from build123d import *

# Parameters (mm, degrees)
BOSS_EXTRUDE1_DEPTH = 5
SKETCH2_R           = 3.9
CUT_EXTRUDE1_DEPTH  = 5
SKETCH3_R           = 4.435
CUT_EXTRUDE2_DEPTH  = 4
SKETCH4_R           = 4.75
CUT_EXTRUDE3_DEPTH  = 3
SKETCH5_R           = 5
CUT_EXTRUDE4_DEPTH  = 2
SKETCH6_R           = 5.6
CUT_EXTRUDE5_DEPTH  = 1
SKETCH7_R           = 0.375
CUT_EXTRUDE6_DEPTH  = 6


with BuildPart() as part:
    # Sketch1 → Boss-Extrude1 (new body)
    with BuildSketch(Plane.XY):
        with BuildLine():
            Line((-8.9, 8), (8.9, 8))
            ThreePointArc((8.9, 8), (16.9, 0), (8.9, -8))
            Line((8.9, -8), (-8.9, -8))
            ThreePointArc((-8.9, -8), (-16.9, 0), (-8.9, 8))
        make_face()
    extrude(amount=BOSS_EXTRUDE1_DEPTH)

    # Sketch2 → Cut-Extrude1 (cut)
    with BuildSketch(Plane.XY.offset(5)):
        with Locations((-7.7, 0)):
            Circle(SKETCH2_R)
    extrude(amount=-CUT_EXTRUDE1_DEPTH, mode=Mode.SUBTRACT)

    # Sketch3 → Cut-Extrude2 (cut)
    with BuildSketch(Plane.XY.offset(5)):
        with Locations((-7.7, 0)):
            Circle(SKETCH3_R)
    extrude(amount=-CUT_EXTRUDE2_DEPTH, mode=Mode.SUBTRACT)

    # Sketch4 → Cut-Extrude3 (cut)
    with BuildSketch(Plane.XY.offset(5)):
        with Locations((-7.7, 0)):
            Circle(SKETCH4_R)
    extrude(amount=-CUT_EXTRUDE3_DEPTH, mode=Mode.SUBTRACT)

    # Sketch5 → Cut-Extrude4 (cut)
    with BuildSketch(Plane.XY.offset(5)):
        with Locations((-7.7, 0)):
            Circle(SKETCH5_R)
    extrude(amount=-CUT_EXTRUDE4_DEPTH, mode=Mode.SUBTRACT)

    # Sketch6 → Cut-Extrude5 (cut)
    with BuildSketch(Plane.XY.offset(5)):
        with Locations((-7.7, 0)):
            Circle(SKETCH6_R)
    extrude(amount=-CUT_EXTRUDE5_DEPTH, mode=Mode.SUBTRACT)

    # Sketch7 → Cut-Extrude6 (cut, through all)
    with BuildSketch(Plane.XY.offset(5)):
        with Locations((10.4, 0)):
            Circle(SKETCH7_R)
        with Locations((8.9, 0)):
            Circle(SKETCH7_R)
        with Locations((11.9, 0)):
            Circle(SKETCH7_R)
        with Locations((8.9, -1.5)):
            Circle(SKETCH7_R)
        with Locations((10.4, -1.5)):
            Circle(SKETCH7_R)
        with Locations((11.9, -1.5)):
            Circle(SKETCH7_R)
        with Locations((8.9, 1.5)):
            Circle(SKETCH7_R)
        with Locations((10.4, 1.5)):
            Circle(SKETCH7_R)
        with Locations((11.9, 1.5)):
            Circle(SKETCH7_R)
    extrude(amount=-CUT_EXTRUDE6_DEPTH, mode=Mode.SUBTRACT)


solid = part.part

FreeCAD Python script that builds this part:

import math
import FreeCAD as App
import Part
import Sketcher
from FreeCAD import Vector

doc = App.newDocument("Part")
body = doc.addObject("PartDesign::Body", "Body")

sketch1 = body.newObject("Sketcher::SketchObject", "Sketch")
sketch1.AttachmentSupport = (doc.getObject("XY_Plane"), [""])
sketch1.MapMode = "FlatFace"
sketch1.addGeometry([
    Part.LineSegment(Vector(9, 8, 0), Vector(-9, 8, 0)),
    Part.ArcOfCircle(Part.Circle(Vector(-9, 0, 0), Vector(0, 0, 1), 8), math.radians(90), math.radians(270)),
    Part.LineSegment(Vector(-9, -8, 0), Vector(9, -8, 0)),
    Part.ArcOfCircle(Part.Circle(Vector(9, 0, 0), Vector(0, 0, 1), 8), math.radians(-90), math.radians(90)),
], False)
sketch1.addConstraint([
    Sketcher.Constraint("Tangent", 0, 2, 1, 1),
    Sketcher.Constraint("Tangent", 1, 2, 2, 1),
    Sketcher.Constraint("Tangent", 2, 2, 3, 1),
    Sketcher.Constraint("Tangent", 3, 2, 0, 1),
    Sketcher.Constraint("Horizontal", 0),
    Sketcher.Constraint("Horizontal", 2),
    Sketcher.Constraint("Symmetric", 1, 3, 3, 3, -1, 1),
    Sketcher.Constraint("Radius", 1, 8.0),
    Sketcher.Constraint("DistanceX", 0, 2, 0, 1, 17.8),
])
pad1 = body.newObject("PartDesign::Pad", "Pad")
pad1.Profile = sketch1
pad1.Length = 5

sketch2 = body.newObject("Sketcher::SketchObject", "Sketch001")
sketch2.AttachmentSupport = (doc.getObject("XY_Plane"), [""])
sketch2.MapMode = "FlatFace"
sketch2.AttachmentOffset = App.Placement(Vector(0, 0, 5), App.Rotation())
sketch2.addGeometry(Part.Circle(Vector(-7.7, 0, 0), Vector(0, 0, 1), 3.9), False)
sketch2.addConstraint([
    Sketcher.Constraint("PointOnObject", 0, 3, -1),
    Sketcher.Constraint("Diameter", 0, 7.8),
    Sketcher.Constraint("DistanceX", 0, 3, -1, 1, 7.7),
])
pocket1 = body.newObject("PartDesign::Pocket", "Pocket")
pocket1.Profile = sketch2
pocket1.Length = 5

sketch3 = body.newObject("Sketcher::SketchObject", "Sketch002")
sketch3.AttachmentSupport = (doc.getObject("XY_Plane"), [""])
sketch3.MapMode = "FlatFace"
sketch3.AttachmentOffset = App.Placement(Vector(0, 0, 5), App.Rotation())
sketch3.addGeometry(Part.Circle(Vector(-7.7, 0, 0), Vector(0, 0, 1), 4.4), False)
sketch3.addConstraint([
    Sketcher.Constraint("PointOnObject", 0, 3, -1),
    Sketcher.Constraint("Diameter", 0, 8.87),
    Sketcher.Constraint("DistanceX", 0, 3, -1, 1, 7.7),
])
pocket2 = body.newObject("PartDesign::Pocket", "Pocket001")
pocket2.Profile = sketch3
pocket2.Length = 4

sketch4 = body.newObject("Sketcher::SketchObject", "Sketch003")
sketch4.AttachmentSupport = (doc.getObject("XY_Plane"), [""])
sketch4.MapMode = "FlatFace"
sketch4.AttachmentOffset = App.Placement(Vector(0, 0, 5), App.Rotation())
sketch4.addGeometry(Part.Circle(Vector(-7.7, 0, 0), Vector(0, 0, 1), 4.8), False)
sketch4.addConstraint([
    Sketcher.Constraint("PointOnObject", 0, 3, -1),
    Sketcher.Constraint("Diameter", 0, 9.5),
    Sketcher.Constraint("DistanceX", 0, 3, -1, 1, 7.7),
])
pocket3 = body.newObject("PartDesign::Pocket", "Pocket002")
pocket3.Profile = sketch4
pocket3.Length = 3

sketch5 = body.newObject("Sketcher::SketchObject", "Sketch004")
sketch5.AttachmentSupport = (doc.getObject("XY_Plane"), [""])
sketch5.MapMode = "FlatFace"
sketch5.AttachmentOffset = App.Placement(Vector(0, 0, 5), App.Rotation())
sketch5.addGeometry(Part.Circle(Vector(-8, 0, 0), Vector(0, 0, 1), 5), False)
sketch5.addConstraint([
    Sketcher.Constraint("PointOnObject", 0, 3, -1),
    Sketcher.Constraint("Diameter", 0, 10.0),
    Sketcher.Constraint("DistanceX", 0, 3, -1, 1, 7.7),
])
pocket4 = body.newObject("PartDesign::Pocket", "Pocket003")
pocket4.Profile = sketch5
pocket4.Length = 2

sketch6 = body.newObject("Sketcher::SketchObject", "Sketch005")
sketch6.AttachmentSupport = (doc.getObject("XY_Plane"), [""])
sketch6.MapMode = "FlatFace"
sketch6.AttachmentOffset = App.Placement(Vector(0, 0, 5), App.Rotation())
sketch6.addGeometry(Part.Circle(Vector(-8, 0, 0), Vector(0, 0, 1), 6), False)
sketch6.addConstraint([
    Sketcher.Constraint("PointOnObject", 0, 3, -1),
    Sketcher.Constraint("Diameter", 0, 11.2),
    Sketcher.Constraint("DistanceX", 0, 3, -1, 1, 7.7),
])
pocket5 = body.newObject("PartDesign::Pocket", "Pocket004")
pocket5.Profile = sketch6
pocket5.Length = 1

sketch7 = body.newObject("Sketcher::SketchObject", "Sketch006")
sketch7.AttachmentSupport = (doc.getObject("XY_Plane"), [""])
sketch7.MapMode = "FlatFace"
sketch7.AttachmentOffset = App.Placement(Vector(0, 0, 5), App.Rotation())
sketch7.addGeometry([
    Part.Circle(Vector(10.4, 0, 0), Vector(0, 0, 1), 0.38),
    Part.Circle(Vector(8.9, 0, 0), Vector(0, 0, 1), 0.38),
    Part.Circle(Vector(11.9, 0, 0), Vector(0, 0, 1), 0.38),
    Part.Circle(Vector(8.9, -1.5, 0), Vector(0, 0, 1), 0.38),
    Part.Circle(Vector(10.4, -1.5, 0), Vector(0, 0, 1), 0.38),
    Part.Circle(Vector(11.9, -1.5, 0), Vector(0, 0, 1), 0.38),
    Part.Circle(Vector(8.9, 1.5, 0), Vector(0, 0, 1), 0.38),
    Part.Circle(Vector(10.4, 1.5, 0), Vector(0, 0, 1), 0.38),
    Part.Circle(Vector(11.9, 1.5, 0), Vector(0, 0, 1), 0.38),
], False)
sketch7.addConstraint([
    Sketcher.Constraint("Equal", 0, 1),
    Sketcher.Constraint("Equal", 1, 2),
    Sketcher.Constraint("Equal", 2, 3),
    Sketcher.Constraint("Equal", 3, 4),
    Sketcher.Constraint("Equal", 4, 5),
    Sketcher.Constraint("Equal", 5, 6),
    Sketcher.Constraint("Equal", 6, 7),
    Sketcher.Constraint("Equal", 7, 8),
    Sketcher.Constraint("Symmetric", 3, 3, 6, 3, -1),
    Sketcher.Constraint("Symmetric", 4, 3, 7, 3, -1),
    Sketcher.Constraint("Symmetric", 5, 3, 8, 3, -1),
    Sketcher.Constraint("PointOnObject", 0, 3, -1),
    Sketcher.Constraint("PointOnObject", 1, 3, -1),
    Sketcher.Constraint("PointOnObject", 2, 3, -1),
    Sketcher.Constraint("Horizontal", 3, 3, 4, 3),
    Sketcher.Constraint("Horizontal", 4, 3, 5, 3),
    Sketcher.Constraint("Vertical", 1, 3, 3, 3),
    Sketcher.Constraint("Vertical", 0, 3, 4, 3),
    Sketcher.Constraint("Vertical", 2, 3, 5, 3),
    Sketcher.Constraint("Diameter", 0, 0.75),
    Sketcher.Constraint("DistanceX", 1, 3, 2, 3, 3.0),
    Sketcher.Constraint("DistanceY", 3, 3, 6, 3, 3.0),
    Sketcher.Constraint("DistanceX", -1, 1, 0, 3, 10.4),
    Sketcher.Constraint("DistanceX", -1, 1, 1, 3, 8.9),
])
pocket6 = body.newObject("PartDesign::Pocket", "Pocket005")
pocket6.Profile = sketch7
pocket6.Type = "ThroughAll"

doc.recompute()
